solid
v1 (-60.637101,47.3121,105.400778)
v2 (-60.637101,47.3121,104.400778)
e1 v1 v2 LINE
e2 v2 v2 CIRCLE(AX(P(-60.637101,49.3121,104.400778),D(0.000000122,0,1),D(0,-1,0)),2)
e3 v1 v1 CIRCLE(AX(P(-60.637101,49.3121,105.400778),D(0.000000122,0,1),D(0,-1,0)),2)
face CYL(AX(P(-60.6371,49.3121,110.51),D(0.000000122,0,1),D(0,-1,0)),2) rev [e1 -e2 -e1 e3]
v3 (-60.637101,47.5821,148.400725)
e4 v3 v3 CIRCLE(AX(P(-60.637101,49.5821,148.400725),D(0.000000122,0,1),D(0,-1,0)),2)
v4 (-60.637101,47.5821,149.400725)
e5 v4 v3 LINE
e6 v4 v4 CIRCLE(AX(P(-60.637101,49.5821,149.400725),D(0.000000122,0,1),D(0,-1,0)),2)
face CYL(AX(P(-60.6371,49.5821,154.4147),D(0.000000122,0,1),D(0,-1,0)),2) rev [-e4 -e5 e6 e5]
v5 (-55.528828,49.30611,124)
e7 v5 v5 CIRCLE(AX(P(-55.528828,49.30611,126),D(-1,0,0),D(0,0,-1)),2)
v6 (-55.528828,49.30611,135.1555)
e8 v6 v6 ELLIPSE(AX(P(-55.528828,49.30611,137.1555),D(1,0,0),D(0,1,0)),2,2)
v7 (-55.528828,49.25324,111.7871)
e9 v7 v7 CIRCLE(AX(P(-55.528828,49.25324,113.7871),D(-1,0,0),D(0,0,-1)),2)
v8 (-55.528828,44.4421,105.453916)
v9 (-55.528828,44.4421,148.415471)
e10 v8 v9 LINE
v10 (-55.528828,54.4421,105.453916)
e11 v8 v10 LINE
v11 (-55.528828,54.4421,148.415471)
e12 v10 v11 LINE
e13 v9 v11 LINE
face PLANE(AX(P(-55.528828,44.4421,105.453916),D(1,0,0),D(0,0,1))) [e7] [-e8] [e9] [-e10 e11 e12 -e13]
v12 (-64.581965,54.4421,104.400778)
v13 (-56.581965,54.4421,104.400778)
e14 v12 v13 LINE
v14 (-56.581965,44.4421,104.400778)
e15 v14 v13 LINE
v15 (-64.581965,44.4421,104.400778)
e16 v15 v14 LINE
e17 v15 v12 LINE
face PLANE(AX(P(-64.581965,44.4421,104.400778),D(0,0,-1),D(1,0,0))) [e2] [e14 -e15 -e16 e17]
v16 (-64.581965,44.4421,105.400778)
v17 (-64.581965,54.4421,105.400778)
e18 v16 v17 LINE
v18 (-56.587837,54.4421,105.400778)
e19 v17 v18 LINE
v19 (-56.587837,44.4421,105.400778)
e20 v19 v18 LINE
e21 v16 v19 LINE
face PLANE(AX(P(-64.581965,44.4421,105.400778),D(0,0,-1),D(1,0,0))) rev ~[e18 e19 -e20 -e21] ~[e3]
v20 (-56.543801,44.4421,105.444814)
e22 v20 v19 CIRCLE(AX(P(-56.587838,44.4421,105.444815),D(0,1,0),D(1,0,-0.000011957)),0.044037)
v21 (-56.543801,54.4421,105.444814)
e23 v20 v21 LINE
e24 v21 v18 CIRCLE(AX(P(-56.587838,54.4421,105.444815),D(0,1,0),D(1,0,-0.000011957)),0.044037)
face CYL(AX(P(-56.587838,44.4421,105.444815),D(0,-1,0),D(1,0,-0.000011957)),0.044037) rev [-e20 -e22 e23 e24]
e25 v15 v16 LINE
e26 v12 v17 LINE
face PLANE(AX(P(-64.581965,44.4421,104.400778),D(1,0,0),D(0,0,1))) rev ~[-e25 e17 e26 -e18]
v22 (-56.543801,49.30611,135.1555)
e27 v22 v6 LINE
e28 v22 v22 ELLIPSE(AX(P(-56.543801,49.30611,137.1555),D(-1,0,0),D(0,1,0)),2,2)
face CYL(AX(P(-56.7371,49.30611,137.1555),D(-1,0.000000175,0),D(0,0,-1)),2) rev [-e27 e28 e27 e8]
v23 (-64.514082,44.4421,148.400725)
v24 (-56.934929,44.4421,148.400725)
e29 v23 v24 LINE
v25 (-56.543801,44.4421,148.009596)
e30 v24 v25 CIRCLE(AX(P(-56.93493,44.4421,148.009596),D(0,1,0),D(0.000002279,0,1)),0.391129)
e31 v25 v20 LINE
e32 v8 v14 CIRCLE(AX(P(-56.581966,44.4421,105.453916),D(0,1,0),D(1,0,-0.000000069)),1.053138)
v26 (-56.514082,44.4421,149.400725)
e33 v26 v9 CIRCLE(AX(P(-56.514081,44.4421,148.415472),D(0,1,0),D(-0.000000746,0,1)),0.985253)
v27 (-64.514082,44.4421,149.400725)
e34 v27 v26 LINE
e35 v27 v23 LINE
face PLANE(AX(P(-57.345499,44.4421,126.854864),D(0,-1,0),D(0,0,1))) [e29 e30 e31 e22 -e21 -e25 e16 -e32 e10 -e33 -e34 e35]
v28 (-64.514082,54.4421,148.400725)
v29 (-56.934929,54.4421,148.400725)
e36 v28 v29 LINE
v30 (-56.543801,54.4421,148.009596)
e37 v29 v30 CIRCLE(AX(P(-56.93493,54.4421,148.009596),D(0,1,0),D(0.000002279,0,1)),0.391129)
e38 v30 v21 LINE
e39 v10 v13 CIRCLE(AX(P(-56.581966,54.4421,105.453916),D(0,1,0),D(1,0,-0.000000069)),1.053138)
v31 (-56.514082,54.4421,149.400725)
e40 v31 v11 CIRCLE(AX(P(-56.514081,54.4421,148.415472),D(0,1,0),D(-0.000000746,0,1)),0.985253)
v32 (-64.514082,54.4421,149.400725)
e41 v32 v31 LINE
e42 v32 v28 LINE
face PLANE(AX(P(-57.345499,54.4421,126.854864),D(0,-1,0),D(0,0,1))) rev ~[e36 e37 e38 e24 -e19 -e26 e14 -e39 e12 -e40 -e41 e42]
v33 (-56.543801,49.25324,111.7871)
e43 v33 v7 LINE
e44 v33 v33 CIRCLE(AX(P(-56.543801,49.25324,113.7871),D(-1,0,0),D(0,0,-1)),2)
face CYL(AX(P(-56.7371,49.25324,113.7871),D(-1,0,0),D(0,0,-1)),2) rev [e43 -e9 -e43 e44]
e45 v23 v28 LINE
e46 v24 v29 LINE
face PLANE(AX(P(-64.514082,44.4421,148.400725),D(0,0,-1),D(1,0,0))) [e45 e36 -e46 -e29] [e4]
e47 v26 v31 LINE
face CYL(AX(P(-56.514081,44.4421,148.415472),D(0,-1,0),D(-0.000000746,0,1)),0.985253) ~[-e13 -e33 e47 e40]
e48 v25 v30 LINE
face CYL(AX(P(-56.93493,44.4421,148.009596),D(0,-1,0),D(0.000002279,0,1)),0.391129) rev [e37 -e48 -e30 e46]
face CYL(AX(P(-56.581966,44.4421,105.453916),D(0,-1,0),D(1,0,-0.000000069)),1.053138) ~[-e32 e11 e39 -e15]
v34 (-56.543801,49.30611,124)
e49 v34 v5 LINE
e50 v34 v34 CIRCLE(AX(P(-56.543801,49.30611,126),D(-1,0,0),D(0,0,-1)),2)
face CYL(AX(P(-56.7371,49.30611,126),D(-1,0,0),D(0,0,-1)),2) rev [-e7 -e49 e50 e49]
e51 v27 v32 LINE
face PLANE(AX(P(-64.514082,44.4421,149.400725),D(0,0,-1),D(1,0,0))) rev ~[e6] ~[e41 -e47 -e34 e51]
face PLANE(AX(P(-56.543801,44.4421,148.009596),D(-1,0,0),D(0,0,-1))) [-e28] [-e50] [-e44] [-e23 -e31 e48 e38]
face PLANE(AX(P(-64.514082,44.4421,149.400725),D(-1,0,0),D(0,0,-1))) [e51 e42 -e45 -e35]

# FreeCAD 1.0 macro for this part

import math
import FreeCAD as App
import Part
import Sketcher
Q = App.Units.Quantity

doc = App.newDocument("Part")
params = doc.addObject("Spreadsheet::Sheet", "Params")
for row, (alias, value) in enumerate([
    ("sketch1_diameter", "4 mm"),
    ("pad1_length", "10 mm"),
    ("sketch2_diameter", "4 mm"),
    ("pad2_length", "10 mm"),
    ("sketch3_diameter", "4 mm"),
    ("pad3_length", "2 mm"),
    ("sketch4_diameter", "4 mm"),
    ("pad4_length", "2 mm"),
    ("sketch5_diameter", "4 mm"),
    ("pad5_length", "2 mm"),
    ("sketch6_diameter", "4 mm"),
    ("pad6_length", "2 mm"),
    ("sketch7_diameter", "4 mm"),
    ("pad7_length", "2 mm"),
    ("sketch8_width", "1 mm"),
    ("sketch8_height", "8 mm"),
    ("pad8_length", "10 mm"),
], start=1):
    params.set(f"A{row}", alias)
    params.set(f"B{row}", "=" + value)
    params.setAlias(f"B{row}", alias)

body = doc.addObject("PartDesign::Body", "Body")

# Sketch on XY plane
sketch1 = doc.addObject("Sketcher::SketchObject", "Sketch")
body.addObject(sketch1)
sketch1.AttachmentSupport = (doc.XY_Plane, [""])
sketch1.MapMode = "FlatFace"
sketch1.addGeometry(Part.Circle(App.Vector(0, 0, 0), App.Vector(0, 0, 1), 2), False)
sketch1.addConstraint([
    Sketcher.Constraint("Coincident", 0, 3, -1, 1),
    Sketcher.Constraint("Diameter", 0, Q("4 mm")),
])
sketch1.setExpression("Constraints[1]", "Params.sketch1_diameter")
pad1 = doc.addObject("PartDesign::Pad", "Pad")
body.addObject(pad1)
pad1.Profile = sketch1
pad1.setExpression("Length", "Params.pad1_length")
body2 = doc.addObject("PartDesign::Body", "Body001")
doc.recompute()

body.Placement = App.Placement(App.Vector(0, 0, 0), App.Rotation(App.Vector(0, 1, 0), 90))
boolean = doc.addObject("PartDesign::Boolean", "Boolean")
body2.addObject(boolean)
boolean.Type = "Fuse"
boolean.addObjects([body])
body3 = doc.addObject("PartDesign::Body", "Body002")
doc.recompute()

body2.Placement = App.Placement(App.Vector(15.49, 3.9, 4.87), App.Rotation(App.Vector(0, 0, 1), 0.000007))
boolean2 = doc.addObject("PartDesign::Boolean", "Boolean001")
body3.addObject(boolean2)
boolean2.Type = "Fuse"
boolean2.addObjects([body2])
body4 = doc.addObject("PartDesign::Body", "Body003")

# Sketch on XY plane
sketch2 = doc.addObject("Sketcher::SketchObject", "Sketch001")
body4.addObject(sketch2)
sketch2.AttachmentSupport = (doc.getObject("XY_Plane003"), [""])
sketch2.MapMode = "FlatFace"
sketch2.addGeometry(Part.Circle(App.Vector(0, 0, 0), App.Vector(0, 0, 1), 2), False)
sketch2.addConstraint([
    Sketcher.Constraint("Coincident", 0, 3, -1, 1),
    Sketcher.Constraint("Diameter", 0, Q("4 mm")),
])
sketch2.setExpression("Constraints[1]", "Params.sketch2_diameter")
pad2 = doc.addObject("PartDesign::Pad", "Pad001")
body4.addObject(pad2)
pad2.Profile = sketch2
pad2.setExpression("Length", "Params.pad2_length")
body5 = doc.addObject("PartDesign::Body", "Body004")
doc.recompute()

body4.Placement = App.Placement(App.Vector(0, 0, 0), App.Rotation(App.Vector(0, 1, 0), 90))
boolean3 = doc.addObject("PartDesign::Boolean", "Boolean002")
body5.addObject(boolean3)
boolean3.Type = "Fuse"
boolean3.addObjects([body4])
body6 = doc.addObject("PartDesign::Body", "Body005")
doc.recompute()

body5.Placement = App.Placement(App.Vector(-28.4147, 3.9, 5.14), App.Rotation(App.Vector(0, 0, 1), 0.000007))
boolean4 = doc.addObject("PartDesign::Boolean", "Boolean003")
body6.addObject(boolean4)
boolean4.Type = "Fuse"
boolean4.addObjects([body5])
body7 = doc.addObject("PartDesign::Body", "Body006")

# Sketch on XY plane
sketch3 = doc.addObject("Sketcher::SketchObject", "Sketch002")
body7.addObject(sketch3)
sketch3.AttachmentSupport = (doc.getObject("XY_Plane006"), [""])
sketch3.MapMode = "FlatFace"
sketch3.addGeometry(Part.Circle(App.Vector(0, 0, 0), App.Vector(0, 0, 1), 2), False)
sketch3.addConstraint([
    Sketcher.Constraint("Coincident", 0, 3, -1, 1),
    Sketcher.Constraint("Diameter", 0, Q("4 mm")),
])
sketch3.setExpression("Constraints[1]", "Params.sketch3_diameter")
pad3 = doc.addObject("PartDesign::Pad", "Pad002")
body7.addObject(pad3)
pad3.Profile = sketch3
pad3.setExpression("Length", "Params.pad3_length")
body8 = doc.addObject("PartDesign::Body", "Body007")
doc.recompute()

body7.Placement = App.Placement(App.Vector(0, 0, 0), App.Rotation(App.Vector(1, 0, 0), 271.492946))
boolean5 = doc.addObject("PartDesign::Boolean", "Boolean004")
body8.addObject(boolean5)
boolean5.Type = "Fuse"
boolean5.addObjects([body7])
body9 = doc.addObject("PartDesign::Body", "Body008")
doc.recompute()

body8.Placement = App.Placement(App.Vector(0, 0, 0), App.Rotation(App.Vector(0, 1, 0), 272.98249))
boolean6 = doc.addObject("PartDesign::Boolean", "Boolean005")
body9.addObject(boolean6)
boolean6.Type = "Fuse"
boolean6.addObjects([body8])
body10 = doc.addObject("PartDesign::Body", "Body009")
doc.recompute()

body9.Placement = App.Placement(App.Vector(-26, 5.29, 4.9), App.Rotation(App.Vector(0, 0, 1), 267.755985))
boolean7 = doc.addObject("PartDesign::Boolean", "Boolean006")
body10.addObject(boolean7)
boolean7.Type = "Fuse"
boolean7.addObjects([body9])
body11 = doc.addObject("PartDesign::Body", "Body010")

# Sketch on XY plane
sketch4 = doc.addObject("Sketcher::SketchObject", "Sketch003")
body11.addObject(sketch4)
sketch4.AttachmentSupport = (doc.getObject("XY_Plane010"), [""])
sketch4.MapMode = "FlatFace"
sketch4.addGeometry(Part.Circle(App.Vector(0, 0, 0), App.Vector(0, 0, 1), 2), False)
sketch4.addConstraint([
    Sketcher.Constraint("Coincident", 0, 3, -1, 1),
    Sketcher.Constraint("Diameter", 0, Q("4 mm")),
])
sketch4.setExpression("Constraints[1]", "Params.sketch4_diameter")
pad4 = doc.addObject("PartDesign::Pad", "Pad003")
body11.addObject(pad4)
pad4.Profile = sketch4
pad4.setExpression("Length", "Params.pad4_length")
body12 = doc.addObject("PartDesign::Body", "Body011")
doc.recompute()

body11.Placement = App.Placement(App.Vector(-11.1555, 0, 4.86401), App.Rotation(App.Vector(1, 0, 0), 90.00001))
boolean8 = doc.addObject("PartDesign::Boolean", "Boolean007")
body12.addObject(boolean8)
boolean8.Type = "Fuse"
boolean8.addObjects([body11])
body13 = doc.addObject("PartDesign::Body", "Body012")

# Sketch on XY plane
sketch5 = doc.addObject("Sketcher::SketchObject", "Sketch004")
body13.addObject(sketch5)
sketch5.AttachmentSupport = (doc.getObject("XY_Plane012"), [""])
sketch5.MapMode = "FlatFace"
sketch5.addGeometry(Part.Circle(App.Vector(0, 0, 0), App.Vector(0, 0, 1), 2), False)
sketch5.addConstraint([
    Sketcher.Constraint("Coincident", 0, 3, -1, 1),
    Sketcher.Constraint("Diameter", 0, Q("4 mm")),
])
sketch5.setExpression("Constraints[1]", "Params.sketch5_diameter")
pad5 = doc.addObject("PartDesign::Pad", "Pad004")
body13.addObject(pad5)
pad5.Profile = sketch5
pad5.setExpression("Length", "Params.pad5_length")
body14 = doc.addObject("PartDesign::Body", "Body013")
doc.recompute()

body13.Placement = App.Placement(App.Vector(0, 0, 0), App.Rotation(App.Vector(1, 0, 0), 90))
boolean9 = doc.addObject("PartDesign::Boolean", "Boolean008")
body14.addObject(boolean9)
boolean9.Type = "Fuse"
boolean9.addObjects([body13])
body15 = doc.addObject("PartDesign::Body", "Body014")
doc.recompute()

body14.Placement = App.Placement(App.Vector(0, 0, 4.86401), App.Rotation(App.Vector(0, 0, 1), 0))
boolean10 = doc.addObject("PartDesign::Boolean", "Boolean009")
body15.addObject(boolean10)
boolean10.Type = "Fuse"
boolean10.addObjects([body14])
body16 = doc.addObject("PartDesign::Body", "Body015")

# Sketch on XY plane
sketch6 = doc.addObject("Sketcher::SketchObject", "Sketch005")
body16.addObject(sketch6)
sketch6.AttachmentSupport = (doc.getObject("XY_Plane015"), [""])
sketch6.MapMode = "FlatFace"
sketch6.addGeometry(Part.Circle(App.Vector(0, 0, 0), App.Vector(0, 0, 1), 2), False)
sketch6.addConstraint([
    Sketcher.Constraint("Coincident", 0, 3, -1, 1),
    Sketcher.Constraint("Diameter", 0, Q("4 mm")),
])
sketch6.setExpression("Constraints[1]", "Params.sketch6_diameter")
pad6 = doc.addObject("PartDesign::Pad", "Pad005")
body16.addObject(pad6)
pad6.Profile = sketch6
pad6.setExpression("Length", "Params.pad6_length")
body17 = doc.addObject("PartDesign::Body", "Body016")
doc.recompute()

body16.Placement = App.Placement(App.Vector(0, 0, 0), App.Rotation(App.Vector(1, 0, 0), 90))
boolean11 = doc.addObject("PartDesign::Boolean", "Boolean010")
body17.addObject(boolean11)
boolean11.Type = "Fuse"
boolean11.addObjects([body16])
body18 = doc.addObject("PartDesign::Body", "Body017")
doc.recompute()

body17.Placement = App.Placement(App.Vector(12.2129, 0, 4.81114), App.Rotation(App.Vector(0, 0, 1), 0))
boolean12 = doc.addObject("PartDesign::Boolean", "Boolean011")
body18.addObject(boolean12)
boolean12.Type = "Fuse"
boolean12.addObjects([body17])
body19 = doc.addObject("PartDesign::Body", "Body018")

# Sketch on XY plane
sketch7 = doc.addObject("Sketcher::SketchObject", "Sketch006")
body19.addObject(sketch7)
sketch7.AttachmentSupport = (doc.getObject("XY_Plane018"), [""])
sketch7.MapMode = "FlatFace"
sketch7.addGeometry(Part.Circle(App.Vector(0, 0, 0), App.Vector(0, 0, 1), 2), False)
sketch7.addConstraint([
    Sketcher.Constraint("Coincident", 0, 3, -1, 1),
    Sketcher.Constraint("Diameter", 0, Q("4 mm")),
])
sketch7.setExpression("Constraints[1]", "Params.sketch7_diameter")
pad7 = doc.addObject("PartDesign::Pad", "Pad006")
body19.addObject(pad7)
pad7.Profile = sketch7
pad7.setExpression("Length", "Params.pad7_length")
body20 = doc.addObject("PartDesign::Body", "Body019")
doc.recompute()

body19.Placement = App.Placement(App.Vector(0, 0, 0), App.Rotation(App.Vector(1, 0, 0), 271.492946))
boolean13 = doc.addObject("PartDesign::Boolean", "Boolean012")
body20.addObject(boolean13)
boolean13.Type = "Fuse"
boolean13.addObjects([body19])
body21 = doc.addObject("PartDesign::Body", "Body020")
doc.recompute()

body20.Placement = App.Placement(App.Vector(0, 0, 0), App.Rotation(App.Vector(0, 1, 0), 272.98249))
boolean14 = doc.addObject("PartDesign::Boolean", "Boolean013")
body21.addObject(boolean14)
boolean14.Type = "Fuse"
boolean14.addObjects([body20])
body22 = doc.addObject("PartDesign::Body", "Body021")
doc.recompute()

body21.Placement = App.Placement(App.Vector(25, 5.38, 4.9), App.Rotation(App.Vector(0, 0, 1), 267.755985))
boolean15 = doc.addObject("PartDesign::Boolean", "Boolean014")
body22.addObject(boolean15)
boolean15.Type = "Fuse"
boolean15.addObjects([body21])
body23 = doc.addObject("PartDesign::Body", "Body022")

# Sketch on XY plane
sketch8 = doc.addObject("Sketcher::SketchObject", "Sketch007")
body23.addObject(sketch8)
sketch8.AttachmentSupport = (doc.getObject("XY_Plane022"), [""])
sketch8.MapMode = "FlatFace"
sketch8.addGeometry([
    Part.LineSegment(App.Vector(-22.415, -1.208, 0), App.Vector(20.546, -1.208, 0)),  # 0
    Part.ArcOfCircle(Part.Circle(App.Vector(20.546, -0.155, 0), App.Vector(0, 0, 1), 1.053), math.radians(-90), math.radians(0)),  # 1
    Part.LineSegment(App.Vector(21.599, -0.155, 0), App.Vector(21.599, 7.845, 0)),  # 2
    Part.LineSegment(App.Vector(21.599, 7.845, 0), App.Vector(20.599, 7.845, 0)),  # 3
    Part.LineSegment(App.Vector(20.599, 7.845, 0), App.Vector(20.599, -0.149, 0)),  # 4
    Part.ArcOfCircle(Part.Circle(App.Vector(20.555, -0.149, 0), App.Vector(0, 0, 1), 0.044), math.radians(-90), math.radians(0)),  # 5
    Part.LineSegment(App.Vector(20.555, -0.193, 0), App.Vector(-22.01, -0.193, 0)),  # 6
    Part.ArcOfCircle(Part.Circle(App.Vector(-22.01, 0.198, 0), App.Vector(0, 0, 1), 0.391), math.radians(-180), math.radians(-90)),  # 7
    Part.LineSegment(App.Vector(-22.401, 0.198, 0), App.Vector(-22.401, 7.777, 0)),  # 8
    Part.LineSegment(App.Vector(-22.401, 7.777, 0), App.Vector(-23.401, 7.777, 0)),  # 9
    Part.LineSegment(App.Vector(-23.401, 7.777, 0), App.Vector(-23.401, -0.223, 0)),  # 10
    Part.ArcOfCircle(Part.Circle(App.Vector(-22.415, -0.223, 0), App.Vector(0, 0, 1), 0.985), math.radians(180), math.radians(270)),  # 11
], False)
sketch8.addConstraint([
    Sketcher.Constraint("Tangent", 0, 2, 1, 1),
    Sketcher.Constraint("Tangent", 1, 2, 2, 1),
    Sketcher.Constraint("Coincident", 2, 2, 3, 1),
    Sketcher.Constraint("Coincident", 3, 2, 4, 1),
    Sketcher.Constraint("Coincident", 4, 2, 5, 2),
    Sketcher.Constraint("Coincident", 5, 1, 6, 1),
    Sketcher.Constraint("Tangent", 6, 2, 7, 2),
    Sketcher.Constraint("Coincident", 7, 1, 8, 1),
    Sketcher.Constraint("Coincident", 8, 2, 9, 1),
    Sketcher.Constraint("Coincident", 9, 2, 10, 1),
    Sketcher.Constraint("Tangent", 10, 2, 11, 1),
    Sketcher.Constraint("Tangent", 11, 2, 0, 1),
    Sketcher.Constraint("Horizontal", 0),
    Sketcher.Constraint("Vertical", 2),
    Sketcher.Constraint("Horizontal", 3),
    Sketcher.Constraint("Vertical", 4),
    Sketcher.Constraint("Horizontal", 6),
    Sketcher.Constraint("Vertical", 8),
    Sketcher.Constraint("Horizontal", 9),
    Sketcher.Constraint("Vertical", 10),
    Sketcher.Constraint("Horizontal", 5, 3, 4, 2),
    Sketcher.Constraint("Equal", 3, 9),
    Sketcher.Constraint("Equal", 2, 10),
    Sketcher.Constraint("DistanceX", 3, 2, 3, 1, Q("1 mm")),
    Sketcher.Constraint("DistanceY", 2, 1, 2, 2, Q("8 mm")),
    Sketcher.Constraint("Radius", 1, Q("1.053138 mm")),
    Sketcher.Constraint("Radius", 7, Q("0.391129 mm")),
    Sketcher.Constraint("Radius", 5, Q("0.044037 mm")),
    Sketcher.Constraint("Radius", 11, Q("0.985253 mm")),
    Sketcher.Constraint("DistanceX", 6, 2, 6, 1, Q("42.564782 mm")),
    Sketcher.Constraint("DistanceY", 4, 2, 4, 1, Q("7.994128 mm")),
    Sketcher.Constraint("DistanceY", 5, 1, -1, 1, Q("0.193299 mm")),
    Sketcher.Constraint("DistanceX", 0, 2, 5, 1, Q("0.009102 mm")),
    Sketcher.Constraint("DistanceY", 11, 2, 7, 1, Q("1.406101 mm")),
    Sketcher.Constraint("DistanceX", 11, 3, -1, 1, Q("22.415472 mm")),
])
sketch8.setExpression("Constraints[23]", "Params.sketch8_width")
sketch8.setExpression("Constraints[24]", "Params.sketch8_height")
pad8 = doc.addObject("PartDesign::Pad", "Pad007")
body23.addObject(pad8)
pad8.Profile = sketch8
pad8.setExpression("Length", "Params.pad8_length")
doc.recompute()

boolean16 = doc.addObject("PartDesign::Boolean", "Boolean015")
body23.addObject(boolean16)
boolean16.Type = "Cut"
boolean16.addObjects([body22])
doc.recompute()

boolean17 = doc.addObject("PartDesign::Boolean", "Boolean016")
body23.addObject(boolean17)
boolean17.Type = "Cut"
boolean17.addObjects([body18])
doc.recompute()

boolean18 = doc.addObject("PartDesign::Boolean", "Boolean017")
body23.addObject(boolean18)
boolean18.Type = "Cut"
boolean18.addObjects([body15])
doc.recompute()

boolean19 = doc.addObject("PartDesign::Boolean", "Boolean018")
body23.addObject(boolean19)
boolean19.Type = "Cut"
boolean19.addObjects([body12])
doc.recompute()

boolean20 = doc.addObject("PartDesign::Boolean", "Boolean019")
body23.addObject(boolean20)
boolean20.Type = "Cut"
boolean20.addObjects([body10])
doc.recompute()

boolean21 = doc.addObject("PartDesign::Boolean", "Boolean020")
body23.addObject(boolean21)
boolean21.Type = "Cut"
boolean21.addObjects([body6])
doc.recompute()

boolean22 = doc.addObject("PartDesign::Boolean", "Boolean021")
body23.addObject(boolean22)
boolean22.Type = "Cut"
boolean22.addObjects([body3])
body24 = doc.addObject("PartDesign::Body", "Body023")
doc.recompute()

body23.Placement = App.Placement(App.Vector(0, 0, 0), App.Rotation(App.Vector(0, 1, 0), 90))
boolean23 = doc.addObject("PartDesign::Boolean", "Boolean022")
body24.addObject(boolean23)
boolean23.Type = "Fuse"
boolean23.addObjects([body23])
body25 = doc.addObject("PartDesign::Body", "Body024")
doc.recompute()

body24.Placement = App.Placement(App.Vector(-56.7371, 44.4421, 126), App.Rotation(App.Vector(0, 0, 1), 90))
boolean24 = doc.addObject("PartDesign::Boolean", "Boolean023")
body25.addObject(boolean24)
boolean24.Type = "Fuse"
boolean24.addObjects([body24])

doc.recompute()
